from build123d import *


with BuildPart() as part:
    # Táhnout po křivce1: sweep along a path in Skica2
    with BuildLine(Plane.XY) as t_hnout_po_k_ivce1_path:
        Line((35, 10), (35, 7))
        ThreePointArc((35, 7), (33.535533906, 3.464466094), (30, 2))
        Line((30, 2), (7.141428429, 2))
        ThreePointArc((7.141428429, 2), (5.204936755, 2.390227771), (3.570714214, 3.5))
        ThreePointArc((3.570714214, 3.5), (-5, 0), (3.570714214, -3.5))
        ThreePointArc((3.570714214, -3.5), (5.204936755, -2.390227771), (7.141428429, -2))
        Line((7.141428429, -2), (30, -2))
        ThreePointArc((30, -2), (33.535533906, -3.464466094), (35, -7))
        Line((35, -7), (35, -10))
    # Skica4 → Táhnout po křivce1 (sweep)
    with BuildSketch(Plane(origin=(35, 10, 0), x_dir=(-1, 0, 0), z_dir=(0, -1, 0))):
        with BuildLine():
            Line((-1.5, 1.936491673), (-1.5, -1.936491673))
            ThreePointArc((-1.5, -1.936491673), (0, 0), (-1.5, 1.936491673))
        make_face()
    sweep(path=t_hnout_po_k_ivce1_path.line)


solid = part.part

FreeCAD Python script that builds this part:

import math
import FreeCAD as App
import Part
import Sketcher
Q = App.Units.Quantity

doc = App.newDocument("Part")
body = doc.addObject("PartDesign::Body", "Body")

# Sketch on XZ plane
sketch1 = body.newObject("Sketcher::SketchObject", "Sketch")
sketch1.AttachmentSupport = (doc.getObject("XZ_Plane"), [""])
sketch1.MapMode = "FlatFace"
sketch1.AttachmentOffset = App.Placement(App.Vector(0, 0, -10), App.Rotation())
sketch1.addGeometry([
    Part.LineSegment(App.Vector(36.5, -1.9, 0), App.Vector(36.5, 1.9, 0)),
    Part.ArcOfCircle(Part.Circle(App.Vector(37, 0, 0), App.Vector(0, 0, 1), 2), math.radians(104), math.radians(256)),
], False)
sketch1.addConstraint([
    Sketcher.Constraint("Coincident", 0, 1, 1, 2),
    Sketcher.Constraint("Coincident", 1, 1, 0, 2),
    Sketcher.Constraint("Vertical", 0),
    Sketcher.Constraint("PointOnObject", 1, 3, -1),
    Sketcher.Constraint("Radius", 1, Q("2 mm")),
    Sketcher.Constraint("DistanceX", -1, 1, 1, 3, Q("37 mm")),
    Sketcher.Constraint("DistanceX", -1, 1, 0, 1, Q("36.5 mm")),
])

# Sketch on XY plane
sketch2 = body.newObject("Sketcher::SketchObject", "Sketch001")
sketch2.AttachmentSupport = (doc.getObject("XY_Plane"), [""])
sketch2.MapMode = "FlatFace"
sketch2.addGeometry([
    Part.LineSegment(App.Vector(35, 10, 0), App.Vector(35, 7, 0)),  # 0
    Part.ArcOfCircle(Part.Circle(App.Vector(30, 7, 0), App.Vector(0, 0, 1), 5), math.radians(-90), math.radians(0)),  # 1
    Part.LineSegment(App.Vector(30, 2, 0), App.Vector(7.1, 2, 0)),  # 2
    Part.ArcOfCircle(Part.Circle(App.Vector(7.1, 7, 0), App.Vector(0, 0, 1), 5), math.radians(-136), math.radians(-90)),  # 3
    Part.ArcOfCircle(Part.Circle(App.Vector(0, 0, 0), App.Vector(0, 0, 1), 5), math.radians(44), math.radians(316)),  # 4
    Part.ArcOfCircle(Part.Circle(App.Vector(7.1, -7, 0), App.Vector(0, 0, 1), 5), math.radians(90), math.radians(136)),  # 5
    Part.LineSegment(App.Vector(7.1, -2, 0), App.Vector(30, -2, 0)),  # 6
    Part.ArcOfCircle(Part.Circle(App.Vector(30, -7, 0), App.Vector(0, 0, 1), 5), math.radians(0), math.radians(90)),  # 7
    Part.LineSegment(App.Vector(35, -7, 0), App.Vector(35, -10, 0)),  # 8
], False)
sketch2.addConstraint([
    Sketcher.Constraint("Tangent", 0, 2, 1, 2),
    Sketcher.Constraint("Tangent", 1, 1, 2, 1),
    Sketcher.Constraint("Tangent", 2, 2, 3, 2),
    Sketcher.Constraint("Tangent", 3, 1, 4, 1),
    Sketcher.Constraint("Tangent", 4, 2, 5, 2),
    Sketcher.Constraint("Tangent", 5, 1, 6, 1),
    Sketcher.Constraint("Tangent", 6, 2, 7, 2),
    Sketcher.Constraint("Tangent", 7, 1, 8, 1),
    Sketcher.Constraint("Vertical", 0),
    Sketcher.Constraint("Horizontal", 2),
    Sketcher.Constraint("Horizontal", 6),
    Sketcher.Constraint("Vertical", 8),
    Sketcher.Constraint("Coincident", 4, 3, -1, 1),
    Sketcher.Constraint("Equal", 1, 3),
    Sketcher.Constraint("Equal", 3, 4),
    Sketcher.Constraint("Equal", 4, 5),
    Sketcher.Constraint("Equal", 5, 7),
    Sketcher.Constraint("Symmetric", 1, 3, 7, 3, -1),
    Sketcher.Constraint("Equal", 0, 8),
    Sketcher.Constraint("Radius", 1, Q("5 mm")),
    Sketcher.Constraint("DistanceY", 0, 2, 0, 1, Q("3 mm")),
    Sketcher.Constraint("DistanceX", -1, 1, 1, 3, Q("30 mm")),
    Sketcher.Constraint("DistanceY", -1, 1, 1, 3, Q("7 mm")),
])
doc.recompute()

additivepipe = body.newObject("PartDesign::AdditivePipe", "AdditivePipe")
additivepipe.Profile = sketch1
additivepipe.Spine = (sketch2, ["Edge1", "Edge2", "Edge3", "Edge4", "Edge5", "Edge6", "Edge7", "Edge8", "Edge9"])

doc.recompute()
